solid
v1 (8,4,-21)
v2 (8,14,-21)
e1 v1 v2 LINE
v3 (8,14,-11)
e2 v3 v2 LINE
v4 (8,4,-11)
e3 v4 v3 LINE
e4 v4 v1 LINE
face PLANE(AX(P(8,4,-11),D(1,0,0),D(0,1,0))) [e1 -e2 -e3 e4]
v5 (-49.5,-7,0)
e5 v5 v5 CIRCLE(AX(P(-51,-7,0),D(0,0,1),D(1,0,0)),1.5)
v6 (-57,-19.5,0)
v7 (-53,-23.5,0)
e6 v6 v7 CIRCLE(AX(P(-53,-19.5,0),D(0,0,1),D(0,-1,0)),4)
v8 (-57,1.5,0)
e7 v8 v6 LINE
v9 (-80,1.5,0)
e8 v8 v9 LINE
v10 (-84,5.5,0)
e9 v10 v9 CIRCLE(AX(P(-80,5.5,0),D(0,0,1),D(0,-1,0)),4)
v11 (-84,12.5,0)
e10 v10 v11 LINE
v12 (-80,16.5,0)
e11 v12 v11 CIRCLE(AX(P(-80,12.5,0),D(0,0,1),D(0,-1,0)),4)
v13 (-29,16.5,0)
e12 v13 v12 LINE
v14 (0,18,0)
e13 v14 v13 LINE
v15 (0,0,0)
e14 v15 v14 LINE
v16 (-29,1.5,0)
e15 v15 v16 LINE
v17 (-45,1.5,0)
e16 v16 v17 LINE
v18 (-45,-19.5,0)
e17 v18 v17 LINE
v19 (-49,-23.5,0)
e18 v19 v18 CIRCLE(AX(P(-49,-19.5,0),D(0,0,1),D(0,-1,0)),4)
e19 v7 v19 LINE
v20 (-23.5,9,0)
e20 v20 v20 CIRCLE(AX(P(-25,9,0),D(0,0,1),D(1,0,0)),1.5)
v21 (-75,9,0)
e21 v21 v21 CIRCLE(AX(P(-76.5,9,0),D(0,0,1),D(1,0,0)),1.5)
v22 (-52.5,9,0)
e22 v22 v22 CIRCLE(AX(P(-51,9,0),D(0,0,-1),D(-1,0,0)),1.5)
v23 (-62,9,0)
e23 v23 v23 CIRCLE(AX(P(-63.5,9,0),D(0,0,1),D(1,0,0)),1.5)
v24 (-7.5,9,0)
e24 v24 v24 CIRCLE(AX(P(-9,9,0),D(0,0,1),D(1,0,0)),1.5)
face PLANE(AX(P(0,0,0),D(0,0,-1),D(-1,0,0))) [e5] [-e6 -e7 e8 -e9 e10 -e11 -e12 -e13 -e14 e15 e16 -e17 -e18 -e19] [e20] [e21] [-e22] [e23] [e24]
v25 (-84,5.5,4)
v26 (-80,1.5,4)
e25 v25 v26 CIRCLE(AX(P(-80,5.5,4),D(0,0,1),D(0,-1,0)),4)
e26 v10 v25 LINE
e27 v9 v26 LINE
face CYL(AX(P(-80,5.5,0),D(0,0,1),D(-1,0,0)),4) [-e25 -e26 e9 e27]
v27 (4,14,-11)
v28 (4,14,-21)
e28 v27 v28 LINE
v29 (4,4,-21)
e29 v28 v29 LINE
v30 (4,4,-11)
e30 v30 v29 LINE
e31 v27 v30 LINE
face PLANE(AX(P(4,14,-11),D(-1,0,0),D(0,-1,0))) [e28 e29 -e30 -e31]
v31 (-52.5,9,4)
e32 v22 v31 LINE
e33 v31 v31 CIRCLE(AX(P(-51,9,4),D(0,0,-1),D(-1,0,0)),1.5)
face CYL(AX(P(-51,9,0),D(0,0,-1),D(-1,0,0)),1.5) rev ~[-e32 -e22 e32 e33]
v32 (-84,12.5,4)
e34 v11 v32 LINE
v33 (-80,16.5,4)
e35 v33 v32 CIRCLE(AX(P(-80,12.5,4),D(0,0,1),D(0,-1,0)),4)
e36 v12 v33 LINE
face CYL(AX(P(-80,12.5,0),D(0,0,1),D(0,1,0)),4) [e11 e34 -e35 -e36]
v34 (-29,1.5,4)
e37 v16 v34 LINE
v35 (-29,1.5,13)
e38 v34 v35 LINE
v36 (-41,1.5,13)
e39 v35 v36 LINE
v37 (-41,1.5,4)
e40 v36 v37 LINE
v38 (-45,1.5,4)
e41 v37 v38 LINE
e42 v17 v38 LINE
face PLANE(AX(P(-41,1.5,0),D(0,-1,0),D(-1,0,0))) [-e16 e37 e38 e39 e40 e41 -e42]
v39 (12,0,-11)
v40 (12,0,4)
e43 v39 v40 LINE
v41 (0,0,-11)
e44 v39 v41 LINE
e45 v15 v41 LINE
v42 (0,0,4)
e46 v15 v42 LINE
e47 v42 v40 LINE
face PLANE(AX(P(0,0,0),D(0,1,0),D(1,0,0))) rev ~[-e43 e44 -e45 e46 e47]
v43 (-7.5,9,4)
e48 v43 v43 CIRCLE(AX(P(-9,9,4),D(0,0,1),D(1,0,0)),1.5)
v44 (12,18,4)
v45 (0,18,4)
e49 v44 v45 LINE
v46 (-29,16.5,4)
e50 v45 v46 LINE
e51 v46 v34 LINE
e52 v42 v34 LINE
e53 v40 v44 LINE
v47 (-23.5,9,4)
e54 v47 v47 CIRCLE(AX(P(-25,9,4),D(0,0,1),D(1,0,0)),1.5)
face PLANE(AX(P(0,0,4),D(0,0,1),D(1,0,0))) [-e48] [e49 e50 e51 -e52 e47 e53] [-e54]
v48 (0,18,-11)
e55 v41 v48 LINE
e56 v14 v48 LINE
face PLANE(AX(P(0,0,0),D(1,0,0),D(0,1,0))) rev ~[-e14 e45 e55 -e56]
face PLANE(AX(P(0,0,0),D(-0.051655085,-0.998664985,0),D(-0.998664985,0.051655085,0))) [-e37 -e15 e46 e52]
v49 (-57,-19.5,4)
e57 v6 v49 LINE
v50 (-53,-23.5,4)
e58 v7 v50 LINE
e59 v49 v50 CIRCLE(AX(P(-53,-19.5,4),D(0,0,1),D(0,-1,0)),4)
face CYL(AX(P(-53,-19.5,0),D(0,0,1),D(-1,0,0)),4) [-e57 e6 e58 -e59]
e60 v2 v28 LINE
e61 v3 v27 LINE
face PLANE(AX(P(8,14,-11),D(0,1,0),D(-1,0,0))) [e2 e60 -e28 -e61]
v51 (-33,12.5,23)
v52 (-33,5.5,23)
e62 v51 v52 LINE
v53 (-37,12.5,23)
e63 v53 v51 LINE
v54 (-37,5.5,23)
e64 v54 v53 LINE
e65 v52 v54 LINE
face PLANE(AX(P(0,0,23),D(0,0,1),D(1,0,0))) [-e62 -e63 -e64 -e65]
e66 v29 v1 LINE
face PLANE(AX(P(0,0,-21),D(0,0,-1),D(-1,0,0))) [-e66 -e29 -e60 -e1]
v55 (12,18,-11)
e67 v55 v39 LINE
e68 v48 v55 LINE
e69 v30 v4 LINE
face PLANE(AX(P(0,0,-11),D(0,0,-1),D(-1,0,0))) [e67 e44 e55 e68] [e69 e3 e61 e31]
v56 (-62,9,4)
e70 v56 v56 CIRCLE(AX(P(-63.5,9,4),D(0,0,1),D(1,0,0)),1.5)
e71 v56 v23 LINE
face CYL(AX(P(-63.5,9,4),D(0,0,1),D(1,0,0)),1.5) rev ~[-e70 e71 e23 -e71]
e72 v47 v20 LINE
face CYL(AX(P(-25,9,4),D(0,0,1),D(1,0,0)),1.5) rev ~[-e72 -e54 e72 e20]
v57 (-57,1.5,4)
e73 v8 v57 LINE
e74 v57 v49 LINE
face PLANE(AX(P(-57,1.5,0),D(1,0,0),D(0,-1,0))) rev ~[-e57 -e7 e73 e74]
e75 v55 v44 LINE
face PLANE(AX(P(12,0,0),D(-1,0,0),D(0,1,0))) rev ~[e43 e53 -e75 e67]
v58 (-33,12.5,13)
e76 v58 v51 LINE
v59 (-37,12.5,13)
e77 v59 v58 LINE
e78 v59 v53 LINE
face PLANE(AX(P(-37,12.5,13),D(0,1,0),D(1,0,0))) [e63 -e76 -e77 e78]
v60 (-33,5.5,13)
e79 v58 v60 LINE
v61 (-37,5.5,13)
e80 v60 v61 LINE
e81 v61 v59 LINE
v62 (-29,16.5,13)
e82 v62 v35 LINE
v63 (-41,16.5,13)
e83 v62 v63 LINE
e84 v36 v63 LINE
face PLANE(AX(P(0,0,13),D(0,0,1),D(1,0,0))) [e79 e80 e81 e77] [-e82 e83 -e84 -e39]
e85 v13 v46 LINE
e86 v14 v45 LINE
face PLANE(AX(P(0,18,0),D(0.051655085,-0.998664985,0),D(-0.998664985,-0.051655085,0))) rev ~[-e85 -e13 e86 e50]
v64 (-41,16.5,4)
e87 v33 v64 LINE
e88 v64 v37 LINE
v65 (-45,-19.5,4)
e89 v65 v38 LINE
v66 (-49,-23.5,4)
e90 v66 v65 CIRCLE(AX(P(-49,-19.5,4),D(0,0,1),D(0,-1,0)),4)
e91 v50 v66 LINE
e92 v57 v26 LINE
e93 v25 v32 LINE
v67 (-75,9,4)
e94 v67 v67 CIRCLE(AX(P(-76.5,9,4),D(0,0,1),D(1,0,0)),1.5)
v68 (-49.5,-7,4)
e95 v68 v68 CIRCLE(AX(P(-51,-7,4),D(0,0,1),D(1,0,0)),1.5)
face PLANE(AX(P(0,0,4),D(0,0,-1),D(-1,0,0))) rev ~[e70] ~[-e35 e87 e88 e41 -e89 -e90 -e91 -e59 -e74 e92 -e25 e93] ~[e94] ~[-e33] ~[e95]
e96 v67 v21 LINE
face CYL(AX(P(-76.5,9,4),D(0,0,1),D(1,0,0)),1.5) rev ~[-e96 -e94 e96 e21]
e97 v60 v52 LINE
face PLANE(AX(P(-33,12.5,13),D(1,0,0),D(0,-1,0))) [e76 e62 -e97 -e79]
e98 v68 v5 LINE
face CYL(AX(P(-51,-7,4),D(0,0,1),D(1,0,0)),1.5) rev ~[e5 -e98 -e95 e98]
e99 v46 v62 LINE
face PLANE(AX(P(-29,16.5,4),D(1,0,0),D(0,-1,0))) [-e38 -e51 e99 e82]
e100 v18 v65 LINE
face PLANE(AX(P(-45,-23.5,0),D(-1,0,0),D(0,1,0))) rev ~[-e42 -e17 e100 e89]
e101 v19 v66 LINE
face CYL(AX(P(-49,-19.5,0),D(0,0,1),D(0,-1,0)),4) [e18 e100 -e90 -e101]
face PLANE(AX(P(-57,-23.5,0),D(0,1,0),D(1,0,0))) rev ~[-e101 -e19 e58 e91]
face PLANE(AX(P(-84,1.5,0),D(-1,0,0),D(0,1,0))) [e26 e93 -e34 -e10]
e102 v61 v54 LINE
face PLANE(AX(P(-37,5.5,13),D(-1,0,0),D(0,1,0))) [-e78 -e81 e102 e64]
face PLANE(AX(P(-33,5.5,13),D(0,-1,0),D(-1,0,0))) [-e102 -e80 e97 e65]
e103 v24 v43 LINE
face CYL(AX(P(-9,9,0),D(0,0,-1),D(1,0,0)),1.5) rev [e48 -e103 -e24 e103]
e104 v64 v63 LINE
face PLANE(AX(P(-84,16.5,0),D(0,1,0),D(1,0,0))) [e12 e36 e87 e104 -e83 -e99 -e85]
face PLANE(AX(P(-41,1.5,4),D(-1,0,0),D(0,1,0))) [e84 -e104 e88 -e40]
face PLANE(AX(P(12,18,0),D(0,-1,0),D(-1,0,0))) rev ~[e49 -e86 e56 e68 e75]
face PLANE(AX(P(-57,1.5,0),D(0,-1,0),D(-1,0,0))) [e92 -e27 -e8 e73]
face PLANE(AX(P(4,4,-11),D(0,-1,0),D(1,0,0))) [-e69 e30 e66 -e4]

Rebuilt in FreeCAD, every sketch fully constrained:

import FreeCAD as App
import Part
import Sketcher


def edges_at(feature, points):
    """Names of the edges that pass closest to the given points."""
    edges = feature.Shape.Edges
    near = lambda p: min(range(len(edges)), key=lambda i: edges[i].distToShape(Part.Vertex(*p))[0])
    return sorted({f"Edge{near(p) + 1}" for p in points})

doc = App.newDocument("Part")
body = doc.addObject("PartDesign::Body", "Body")

sketch1 = body.newObject("Sketcher::SketchObject", "Sketch")
sketch1.AttachmentSupport = (doc.getObject("XY_Plane"), [""])
sketch1.MapMode = "FlatFace"
sketch1.addGeometry([
    Part.LineSegment(App.Vector(-29, 1.5, 0), App.Vector(0, 0, 0)),
    Part.LineSegment(App.Vector(0, 0, 0), App.Vector(12, 0, 0)),
    Part.LineSegment(App.Vector(12, 0, 0), App.Vector(12, 18, 0)),
    Part.LineSegment(App.Vector(12, 18, 0), App.Vector(0, 18, 0)),
    Part.LineSegment(App.Vector(0, 18, 0), App.Vector(-29, 16.5, 0)),
    Part.LineSegment(App.Vector(-29, 16.5, 0), App.Vector(-41, 16.5, 0)),
    Part.LineSegment(App.Vector(-41, 16.5, 0), App.Vector(-41, 1.5, 0)),
    Part.LineSegment(App.Vector(-41, 1.5, 0), App.Vector(-29, 1.5, 0)),
    Part.Circle(App.Vector(-9, 9, 0), App.Vector(0, 0, 1), 1.5),
], False)
sketch1.addConstraint([
    Sketcher.Constraint("Coincident", 0, 2, 1, 1),
    Sketcher.Constraint("Coincident", 1, 2, 2, 1),
    Sketcher.Constraint("Coincident", 2, 2, 3, 1),
    Sketcher.Constraint("Coincident", 3, 2, 4, 1),
    Sketcher.Constraint("Coincident", 4, 2, 5, 1),
    Sketcher.Constraint("Coincident", 5, 2, 6, 1),
    Sketcher.Constraint("Coincident", 6, 2, 7, 1),
    Sketcher.Constraint("Coincident", 7, 2, 0, 1),
    Sketcher.Constraint("Horizontal", 1),
    Sketcher.Constraint("Vertical", 2),
    Sketcher.Constraint("Horizontal", 3),
    Sketcher.Constraint("Horizontal", 5),
    Sketcher.Constraint("Vertical", 6),
    Sketcher.Constraint("Horizontal", 7),
    Sketcher.Constraint("Coincident", 0, 2, -1, 1),
    Sketcher.Constraint("PointOnObject", 3, 2, -2),
    Sketcher.Constraint("Vertical", 4, 2, 7, 2),
    Sketcher.Constraint("Equal", 3, 5),
    Sketcher.Constraint("Equal", 0, 4),
    Sketcher.Constraint("Diameter", 8, 3.0),
    Sketcher.Constraint("DistanceX", 1, 1, 1, 2, 12.0),
    Sketcher.Constraint("DistanceY", 2, 1, 2, 2, 18.0),
    Sketcher.Constraint("DistanceY", 6, 2, 6, 1, 15.0),
    Sketcher.Constraint("DistanceX", 8, 3, -1, 1, 9.0),
    Sketcher.Constraint("DistanceY", -1, 1, 8, 3, 9.0),
    Sketcher.Constraint("DistanceX", 4, 2, -1, 1, 29.0),
])
pad1 = body.newObject("PartDesign::Pad", "Pad")
pad1.Profile = sketch1
pad1.Length = 4

sketch2 = body.newObject("Sketcher::SketchObject", "Sketch001")
sketch2.AttachmentSupport = (doc.getObject("XY_Plane"), [""])
sketch2.MapMode = "FlatFace"
sketch2.addGeometry([
    Part.LineSegment(App.Vector(0, 0, 0), App.Vector(0, 18, 0)),
    Part.LineSegment(App.Vector(0, 18, 0), App.Vector(12, 18, 0)),
    Part.LineSegment(App.Vector(12, 18, 0), App.Vector(12, 0, 0)),
    Part.LineSegment(App.Vector(12, 0, 0), App.Vector(0, 0, 0)),
], False)
sketch2.addConstraint([
    Sketcher.Constraint("Coincident", 0, 2, 1, 1),
    Sketcher.Constraint("Coincident", 1, 2, 2, 1),
    Sketcher.Constraint("Coincident", 2, 2, 3, 1),
    Sketcher.Constraint("Coincident", 3, 2, 0, 1),
    Sketcher.Constraint("Vertical", 0),
    Sketcher.Constraint("Horizontal", 1),
    Sketcher.Constraint("Vertical", 2),
    Sketcher.Constraint("Horizontal", 3),
    Sketcher.Constraint("Coincident", 3, 2, -1, 1),
    Sketcher.Constraint("DistanceX", 1, 1, 1, 2, 12.0),
    Sketcher.Constraint("DistanceY", 0, 1, 0, 2, 18.0),
])
pad2 = body.newObject("PartDesign::Pad", "Pad001")
pad2.Profile = sketch2
pad2.Length = 11
pad2.Reversed = True

sketch3 = body.newObject("Sketcher::SketchObject", "Sketch002")
sketch3.AttachmentSupport = (doc.getObject("XY_Plane"), [""])
sketch3.MapMode = "FlatFace"
sketch3.AttachmentOffset = App.Placement(App.Vector(0, 0, 4), App.Rotation())
sketch3.addGeometry([
    Part.LineSegment(App.Vector(-29, 2, 0), App.Vector(-29, 16, 0)),
    Part.LineSegment(App.Vector(-29, 16, 0), App.Vector(-41, 16, 0)),
    Part.LineSegment(App.Vector(-41, 16, 0), App.Vector(-41, 2, 0)),
    Part.LineSegment(App.Vector(-41, 2, 0), App.Vector(-29, 2, 0)),
], False)
sketch3.addConstraint([
    Sketcher.Constraint("Coincident", 0, 2, 1, 1),
    Sketcher.Constraint("Coincident", 1, 2, 2, 1),
    Sketcher.Constraint("Coincident", 2, 2, 3, 1),
    Sketcher.Constraint("Coincident", 3, 2, 0, 1),
    Sketcher.Constraint("Vertical", 0),
    Sketcher.Constraint("Horizontal", 1),
    Sketcher.Constraint("Vertical", 2),
    Sketcher.Constraint("Horizontal", 3),
    Sketcher.Constraint("DistanceX", 1, 2, 1, 1, 12.0),
    Sketcher.Constraint("DistanceY", 0, 1, 0, 2, 15.0),
    Sketcher.Constraint("DistanceX", 0, 2, -1, 1, 29.0),
    Sketcher.Constraint("DistanceY", -1, 1, 0, 2, 16.5),
])
pad3 = body.newObject("PartDesign::Pad", "Pad002")
pad3.Profile = sketch3
pad3.Length = 9

sketch4 = body.newObject("Sketcher::SketchObject", "Sketch003")
sketch4.AttachmentSupport = (doc.getObject("XY_Plane"), [""])
sketch4.MapMode = "FlatFace"
sketch4.AttachmentOffset = App.Placement(App.Vector(0, 0, -11), App.Rotation())
sketch4.addGeometry([
    Part.LineSegment(App.Vector(8, 4, 0), App.Vector(4, 4, 0)),
    Part.LineSegment(App.Vector(4, 4, 0), App.Vector(4, 14, 0)),
    Part.LineSegment(App.Vector(4, 14, 0), App.Vector(8, 14, 0)),
    Part.LineSegment(App.Vector(8, 14, 0), App.Vector(8, 4, 0)),
], False)
sketch4.addConstraint([
    Sketcher.Constraint("Coincident", 0, 2, 1, 1),
    Sketcher.Constraint("Coincident", 1, 2, 2, 1),
    Sketcher.Constraint("Coincident", 2, 2, 3, 1),
    Sketcher.Constraint("Coincident", 3, 2, 0, 1),
    Sketcher.Constraint("Horizontal", 0),
    Sketcher.Constraint("Vertical", 1),
    Sketcher.Constraint("Horizontal", 2),
    Sketcher.Constraint("Vertical", 3),
    Sketcher.Constraint("DistanceX", 0, 2, 0, 1, 4.0),
    Sketcher.Constraint("DistanceY", 1, 1, 1, 2, 10.0),
    Sketcher.Constraint("DistanceX", -1, 1, 0, 2, 4.0),
    Sketcher.Constraint("DistanceY", -1, 1, 0, 2, 4.0),
])
pad4 = body.newObject("PartDesign::Pad", "Pad003")
pad4.Profile = sketch4
pad4.Length = 10
pad4.Reversed = True

sketch5 = body.newObject("Sketcher::SketchObject", "Sketch004")
sketch5.AttachmentSupport = (doc.getObject("XY_Plane"), [""])
sketch5.MapMode = "FlatFace"
sketch5.AttachmentOffset = App.Placement(App.Vector(0, 0, 13), App.Rotation())
sketch5.addGeometry([
    Part.LineSegment(App.Vector(-37, 5.5, 0), App.Vector(-33, 5.5, 0)),
    Part.LineSegment(App.Vector(-33, 5.5, 0), App.Vector(-33, 12.5, 0)),
    Part.LineSegment(App.Vector(-33, 12.5, 0), App.Vector(-37, 12.5, 0)),
    Part.LineSegment(App.Vector(-37, 12.5, 0), App.Vector(-37, 5.5, 0)),
], False)
sketch5.addConstraint([
    Sketcher.Constraint("Coincident", 0, 2, 1, 1),
    Sketcher.Constraint("Coincident", 1, 2, 2, 1),
    Sketcher.Constraint("Coincident", 2, 2, 3, 1),
    Sketcher.Constraint("Coincident", 3, 2, 0, 1),
    Sketcher.Constraint("Horizontal", 0),
    Sketcher.Constraint("Vertical", 1),
    Sketcher.Constraint("Horizontal", 2),
    Sketcher.Constraint("Vertical", 3),
    Sketcher.Constraint("DistanceX", 0, 1, 0, 2, 4.0),
    Sketcher.Constraint("DistanceY", 1, 1, 1, 2, 7.0),
    Sketcher.Constraint("DistanceX", 0, 2, -1, 1, 33.0),
    Sketcher.Constraint("DistanceY", -1, 1, 0, 2, 5.5),
])
pad5 = body.newObject("PartDesign::Pad", "Pad004")
pad5.Profile = sketch5
pad5.Length = 10

sketch6 = body.newObject("Sketcher::SketchObject", "Sketch005")
sketch6.AttachmentSupport = (doc.getObject("XY_Plane"), [""])
sketch6.MapMode = "FlatFace"
sketch6.addGeometry([
    Part.LineSegment(App.Vector(-84, 16.5, 0), App.Vector(-41, 16.5, 0)),
    Part.LineSegment(App.Vector(-41, 16.5, 0), App.Vector(-41, 1.5, 0)),
    Part.LineSegment(App.Vector(-41, 1.5, 0), App.Vector(-45, 1.5, 0)),
    Part.LineSegment(App.Vector(-45, 1.5, 0), App.Vector(-45, -23.5, 0)),
    Part.LineSegment(App.Vector(-45, -23.5, 0), App.Vector(-57, -23.5, 0)),
    Part.LineSegment(App.Vector(-57, -23.5, 0), App.Vector(-57, 1.5, 0)),
    Part.LineSegment(App.Vector(-57, 1.5, 0), App.Vector(-84, 1.5, 0)),
    Part.LineSegment(App.Vector(-84, 1.5, 0), App.Vector(-84, 16.5, 0)),
    Part.Circle(App.Vector(-51, 9, 0), App.Vector(0, 0, 1), 1.5),
], False)
sketch6.addConstraint([
    Sketcher.Constraint("Coincident", 0, 2, 1, 1),
    Sketcher.Constraint("Coincident", 1, 2, 2, 1),
    Sketcher.Constraint("Coincident", 2, 2, 3, 1),
    Sketcher.Constraint("Coincident", 3, 2, 4, 1),
    Sketcher.Constraint("Coincident", 4, 2, 5, 1),
    Sketcher.Constraint("Coincident", 5, 2, 6, 1),
    Sketcher.Constraint("Coincident", 6, 2, 7, 1),
    Sketcher.Constraint("Coincident", 7, 2, 0, 1),
    Sketcher.Constraint("Horizontal", 0),
    Sketcher.Constraint("Vertical", 1),
    Sketcher.Constraint("Horizontal", 2),
    Sketcher.Constraint("Vertical", 3),
    Sketcher.Constraint("Horizontal", 4),
    Sketcher.Constraint("Vertical", 5),
    Sketcher.Constraint("Horizontal", 6),
    Sketcher.Constraint("Vertical", 7),
    Sketcher.Constraint("Horizontal", 2, 2, 5, 2),
    Sketcher.Constraint("Diameter", 8, 3.0),
    Sketcher.Constraint("DistanceX", 0, 1, 0, 2, 43.0),
    Sketcher.Constraint("DistanceX", 2, 2, 2, 1, 4.0),
    Sketcher.Constraint("DistanceX", 4, 2, 4, 1, 12.0),
    Sketcher.Constraint("DistanceY", 1, 2, 1, 1, 15.0),
    Sketcher.Constraint("DistanceY", 3, 2, 3, 1, 25.0),
    Sketcher.Constraint("DistanceX", 8, 3, -1, 1, 51.0),
    Sketcher.Constraint("DistanceY", -1, 1, 8, 3, 9.0),
    Sketcher.Constraint("DistanceX", 0, 2, -1, 1, 41.0),
    Sketcher.Constraint("DistanceY", -1, 1, 0, 2, 16.5),
])
pad6 = body.newObject("PartDesign::Pad", "Pad005")
pad6.Profile = sketch6
pad6.Length = 4
doc.recompute()

fillet = body.newObject("PartDesign::Fillet", "Fillet")
fillet.Base = (pad6, edges_at(pad6, [
    (-84, 16.5, 2),
    (-84, 1.5, 2),
    (-57, -23.5, 2),
    (-45, -23.5, 2),
]))
fillet.Radius = 4

sketch7 = body.newObject("Sketcher::SketchObject", "Sketch006")
sketch7.AttachmentSupport = (doc.getObject("XY_Plane"), [""])
sketch7.MapMode = "FlatFace"
sketch7.AttachmentOffset = App.Placement(App.Vector(0, 0, 4), App.Rotation())
sketch7.addGeometry([
    Part.Circle(App.Vector(-63.5, 9, 0), App.Vector(0, 0, 1), 1.5),
    Part.Circle(App.Vector(-76.5, 9, 0), App.Vector(0, 0, 1), 1.5),
], False)
sketch7.addConstraint([
    Sketcher.Constraint("Equal", 0, 1),
    Sketcher.Constraint("Horizontal", 0, 3, 1, 3),
    Sketcher.Constraint("Diameter", 0, 3.0),
    Sketcher.Constraint("DistanceX", 1, 3, 0, 3, 13.0),
    Sketcher.Constraint("DistanceY", -1, 1, 0, 3, 9.0),
    Sketcher.Constraint("DistanceX", 0, 3, -1, 1, 63.5),
])
pocket1 = body.newObject("PartDesign::Pocket", "Pocket")
pocket1.Profile = sketch7
pocket1.Type = "ThroughAll"

sketch8 = body.newObject("Sketcher::SketchObject", "Sketch007")
sketch8.AttachmentSupport = (doc.getObject("XY_Plane"), [""])
sketch8.MapMode = "FlatFace"
sketch8.AttachmentOffset = App.Placement(App.Vector(0, 0, 4), App.Rotation())
sketch8.addGeometry(Part.Circle(App.Vector(-51, -7, 0), App.Vector(0, 0, 1), 1.5), False)
sketch8.addConstraint([
    Sketcher.Constraint("Diameter", 0, 3.0),
    Sketcher.Constraint("DistanceX", 0, 3, -1, 1, 51.0),
    Sketcher.Constraint("DistanceY", 0, 3, -1, 1, 7.0),
])
pocket2 = body.newObject("PartDesign::Pocket", "Pocket001")
pocket2.Profile = sketch8
pocket2.Type = "ThroughAll"

sketch9 = body.newObject("Sketcher::SketchObject", "Sketch008")
sketch9.AttachmentSupport = (doc.getObject("XY_Plane"), [""])
sketch9.MapMode = "FlatFace"
sketch9.AttachmentOffset = App.Placement(App.Vector(0, 0, 4), App.Rotation())
sketch9.addGeometry(Part.Circle(App.Vector(-25, 9, 0), App.Vector(0, 0, 1), 1.5), False)
sketch9.addConstraint([
    Sketcher.Constraint("Diameter", 0, 3.0),
    Sketcher.Constraint("DistanceX", 0, 3, -1, 1, 25.0),
    Sketcher.Constraint("DistanceY", -1, 1, 0, 3, 9.0),
])
pocket3 = body.newObject("PartDesign::Pocket", "Pocket002")
pocket3.Profile = sketch9
pocket3.Type = "ThroughAll"

doc.recompute()
